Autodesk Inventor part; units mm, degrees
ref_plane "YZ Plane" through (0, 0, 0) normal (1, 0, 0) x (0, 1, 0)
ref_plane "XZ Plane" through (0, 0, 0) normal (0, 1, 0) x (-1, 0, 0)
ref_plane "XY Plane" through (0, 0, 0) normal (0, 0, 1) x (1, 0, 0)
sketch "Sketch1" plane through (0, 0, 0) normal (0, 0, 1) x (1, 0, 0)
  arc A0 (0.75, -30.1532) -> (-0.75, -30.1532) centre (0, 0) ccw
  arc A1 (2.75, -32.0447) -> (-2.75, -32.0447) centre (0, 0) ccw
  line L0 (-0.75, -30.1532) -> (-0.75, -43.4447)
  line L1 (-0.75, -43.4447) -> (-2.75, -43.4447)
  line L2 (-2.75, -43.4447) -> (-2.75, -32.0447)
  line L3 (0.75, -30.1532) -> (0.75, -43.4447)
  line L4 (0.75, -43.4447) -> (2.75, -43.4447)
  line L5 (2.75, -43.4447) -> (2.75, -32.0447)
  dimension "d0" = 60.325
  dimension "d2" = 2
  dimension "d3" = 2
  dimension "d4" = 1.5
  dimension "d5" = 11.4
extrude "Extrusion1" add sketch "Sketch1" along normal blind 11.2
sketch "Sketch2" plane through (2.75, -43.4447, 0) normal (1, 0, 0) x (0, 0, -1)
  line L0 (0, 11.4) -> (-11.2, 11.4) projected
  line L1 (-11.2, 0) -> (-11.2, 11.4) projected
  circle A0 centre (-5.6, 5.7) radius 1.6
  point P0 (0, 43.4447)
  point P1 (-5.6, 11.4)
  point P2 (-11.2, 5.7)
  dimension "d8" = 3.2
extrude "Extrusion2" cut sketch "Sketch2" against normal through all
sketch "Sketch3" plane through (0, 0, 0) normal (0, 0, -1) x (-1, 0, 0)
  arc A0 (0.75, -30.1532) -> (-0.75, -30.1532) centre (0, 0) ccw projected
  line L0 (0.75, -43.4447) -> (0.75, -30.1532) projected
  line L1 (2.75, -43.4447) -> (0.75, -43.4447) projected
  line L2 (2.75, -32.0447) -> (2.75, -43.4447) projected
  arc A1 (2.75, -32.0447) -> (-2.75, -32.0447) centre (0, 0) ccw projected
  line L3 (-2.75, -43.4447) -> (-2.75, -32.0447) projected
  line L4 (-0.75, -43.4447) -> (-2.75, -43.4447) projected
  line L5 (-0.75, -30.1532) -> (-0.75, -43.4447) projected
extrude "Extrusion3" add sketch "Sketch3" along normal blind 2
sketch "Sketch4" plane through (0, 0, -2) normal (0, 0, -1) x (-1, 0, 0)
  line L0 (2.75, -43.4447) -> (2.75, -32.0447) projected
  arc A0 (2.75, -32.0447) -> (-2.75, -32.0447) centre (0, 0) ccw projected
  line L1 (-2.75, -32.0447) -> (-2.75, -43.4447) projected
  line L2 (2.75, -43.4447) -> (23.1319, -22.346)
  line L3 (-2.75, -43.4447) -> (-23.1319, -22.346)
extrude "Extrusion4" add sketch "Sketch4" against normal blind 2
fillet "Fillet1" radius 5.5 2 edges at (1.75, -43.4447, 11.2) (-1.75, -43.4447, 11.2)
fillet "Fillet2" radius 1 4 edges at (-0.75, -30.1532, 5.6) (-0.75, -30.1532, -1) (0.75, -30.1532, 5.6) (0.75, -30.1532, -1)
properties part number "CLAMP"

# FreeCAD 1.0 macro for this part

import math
import FreeCAD as App
import Part
import Sketcher

V = App.Vector
Q = App.Units.Quantity


def edges_at(feature, points):
    """Names of the edges that pass closest to the given points."""
    edges = feature.Shape.Edges
    near = lambda p: min(range(len(edges)), key=lambda i: edges[i].distToShape(Part.Vertex(*p))[0])
    return sorted({f"Edge{near(p) + 1}" for p in points})

doc = App.newDocument("Part")
body = doc.addObject("PartDesign::Body", "Body")

# Sketch on XY plane
sketch1 = body.newObject("Sketcher::SketchObject", "Sketch")
sketch1.AttachmentSupport = (doc.getObject("XY_Plane"), [""])
sketch1.MapMode = "FlatFace"
sketch1.addGeometry([
    Part.ArcOfCircle(Part.Circle(V(0, 0, 0), V(0, 0, 1), 30.162526), math.radians(-88.575177), math.radians(268.575177)),  # 0
    Part.LineSegment(V(0.75, -30.1532, 0), V(0.75, -43.4447, 0)),  # 1
    Part.LineSegment(V(0.75, -43.4447, 0), V(2.75, -43.4447, 0)),  # 2
    Part.LineSegment(V(2.75, -43.4447, 0), V(2.75, -32.0447, 0)),  # 3
    Part.ArcOfCircle(Part.Circle(V(0, 0, 0), V(0, 0, 1), 32.162483), math.radians(-85.09503), math.radians(265.09503)),  # 4
    Part.LineSegment(V(-2.75, -32.0447, 0), V(-2.75, -43.4447, 0)),  # 5
    Part.LineSegment(V(-2.75, -43.4447, 0), V(-0.75, -43.4447, 0)),  # 6
    Part.LineSegment(V(-0.75, -43.4447, 0), V(-0.75, -30.1532, 0)),  # 7
], False)
sketch1.addConstraint([
    Sketcher.Constraint("Coincident", 0, 1, 1, 1),
    Sketcher.Constraint("Coincident", 1, 2, 2, 1),
    Sketcher.Constraint("Coincident", 2, 2, 3, 1),
    Sketcher.Constraint("Coincident", 3, 2, 4, 1),
    Sketcher.Constraint("Coincident", 4, 2, 5, 1),
    Sketcher.Constraint("Coincident", 5, 2, 6, 1),
    Sketcher.Constraint("Coincident", 6, 2, 7, 1),
    Sketcher.Constraint("Coincident", 7, 2, 0, 2),
    Sketcher.Constraint("Vertical", 1),
    Sketcher.Constraint("Horizontal", 2),
    Sketcher.Constraint("Vertical", 3),
    Sketcher.Constraint("Vertical", 5),
    Sketcher.Constraint("Horizontal", 6),
    Sketcher.Constraint("Vertical", 7),
    Sketcher.Constraint("Coincident", 0, 3, -1, 1),
    Sketcher.Constraint("Coincident", 4, 3, -1, 1),
    Sketcher.Constraint("Symmetric", 2, 2, 5, 2, -2),
    Sketcher.Constraint("Horizontal", 0, 1, 7, 2),
    Sketcher.Constraint("DistanceX", 2, 1, 2, 2, 2.0),
    Sketcher.Constraint("DistanceY", 3, 1, 3, 2, 11.4),
    Sketcher.Constraint("Radius", 0, 30.1625),
    Sketcher.Constraint("DistanceX", 6, 2, 1, 2, 1.5),
    Sketcher.Constraint("Radius", 4, 32.1625),
])
pad1 = body.newObject("PartDesign::Pad", "Pad")
pad1.Profile = sketch1
pad1.Length = 11.2

# Sketch on YZ plane
sketch2 = body.newObject("Sketcher::SketchObject", "Sketch001")
sketch2.AttachmentSupport = (doc.getObject("YZ_Plane"), [""])
sketch2.MapMode = "FlatFace"
sketch2.AttachmentOffset = App.Placement(V(0, 0, 2.75), App.Rotation())
sketch2.addGeometry(Part.Circle(V(-37.7447, 5.6, 0), V(0, 0, 1), 1.6), False)
sketch2.addConstraint([
    Sketcher.Constraint("Diameter", 0, 3.2),
    Sketcher.Constraint("DistanceY", -1, 1, 0, 3, 5.6),
    Sketcher.Constraint("DistanceX", 0, 3, -1, 1, 37.7447),
])
pocket1 = body.newObject("PartDesign::Pocket", "Pocket")
pocket1.Profile = sketch2
pocket1.Type = "ThroughAll"

# Sketch on XY plane
sketch3 = body.newObject("Sketcher::SketchObject", "Sketch002")
sketch3.AttachmentSupport = (doc.getObject("XY_Plane"), [""])
sketch3.MapMode = "FlatFace"
sketch3.addGeometry([
    Part.ArcOfCircle(Part.Circle(V(0, 0, 0), V(0, 0, 1), 30.162526), math.radians(-88.575177), math.radians(268.575177)),  # 0
    Part.LineSegment(V(-0.75, -30.1532, 0), V(-0.75, -43.4447, 0)),  # 1
    Part.LineSegment(V(-0.75, -43.4447, 0), V(-2.75, -43.4447, 0)),  # 2
    Part.LineSegment(V(-2.75, -43.4447, 0), V(-2.75, -32.0447, 0)),  # 3
    Part.ArcOfCircle(Part.Circle(V(0, 0, 0), V(0, 0, 1), 32.162483), math.radians(-85.09503), math.radians(265.09503)),  # 4
    Part.LineSegment(V(2.75, -32.0447, 0), V(2.75, -43.4447, 0)),  # 5
    Part.LineSegment(V(2.75, -43.4447, 0), V(0.75, -43.4447, 0)),  # 6
    Part.LineSegment(V(0.75, -43.4447, 0), V(0.75, -30.1532, 0)),  # 7
], False)
sketch3.addConstraint([
    Sketcher.Constraint("Coincident", 0, 2, 1, 1),
    Sketcher.Constraint("Coincident", 1, 2, 2, 1),
    Sketcher.Constraint("Coincident", 2, 2, 3, 1),
    Sketcher.Constraint("Coincident", 3, 2, 4, 2),
    Sketcher.Constraint("Coincident", 4, 1, 5, 1),
    Sketcher.Constraint("Coincident", 5, 2, 6, 1),
    Sketcher.Constraint("Coincident", 6, 2, 7, 1),
    Sketcher.Constraint("Coincident", 7, 2, 0, 1),
    Sketcher.Constraint("Vertical", 1),
    Sketcher.Constraint("Horizontal", 2),
    Sketcher.Constraint("Vertical", 3),
    Sketcher.Constraint("Vertical", 5),
    Sketcher.Constraint("Horizontal", 6),
    Sketcher.Constraint("Vertical", 7),
    Sketcher.Constraint("Coincident", 0, 3, -1, 1),
    Sketcher.Constraint("Coincident", 4, 3, -1, 1),
    Sketcher.Constraint("Symmetric", 2, 2, 5, 2, -2),
    Sketcher.Constraint("Horizontal", 0, 2, 7, 2),
    Sketcher.Constraint("DistanceX", 2, 2, 2, 1, 2.0),
    Sketcher.Constraint("DistanceY", 3, 1, 3, 2, 11.4),
    Sketcher.Constraint("Radius", 0, 30.1625),
    Sketcher.Constraint("Radius", 4, 32.1625),
    Sketcher.Constraint("DistanceX", 0, 2, 4, 1, 3.5),
])
pad2 = body.newObject("PartDesign::Pad", "Pad001")
pad2.Profile = sketch3
pad2.Length = 2
pad2.Reversed = True

# Sketch on XY plane
sketch4 = body.newObject("Sketcher::SketchObject", "Sketch003")
sketch4.AttachmentSupport = (doc.getObject("XY_Plane"), [""])
sketch4.MapMode = "FlatFace"
sketch4.AttachmentOffset = App.Placement(V(0, 0, -2), App.Rotation())
sketch4.addGeometry([
    Part.ArcOfCircle(Part.Circle(V(0, 0, 0), V(0, 0, 1), 32.162483), math.radians(-85.09503), math.radians(-44.009975)),  # 0
    Part.LineSegment(V(23.1319, -22.346, 0), V(2.75, -43.4447, 0)),  # 1
    Part.LineSegment(V(2.75, -43.4447, 0), V(2.75, -32.0447, 0)),  # 2
    Part.LineSegment(V(-2.75, -32.0447, 0), V(-2.75, -43.4447, 0)),  # 3
    Part.LineSegment(V(-2.75, -43.4447, 0), V(-23.1319, -22.346, 0)),  # 4
    Part.ArcOfCircle(Part.Circle(V(0, 0, 0), V(0, 0, 1), 32.162483), math.radians(-135.990025), math.radians(-94.90497)),  # 5
], False)
sketch4.addConstraint([
    Sketcher.Constraint("Tangent", 0, 2, 1, 1),
    Sketcher.Constraint("Coincident", 1, 2, 2, 1),
    Sketcher.Constraint("Coincident", 2, 2, 0, 1),
    Sketcher.Constraint("Coincident", 3, 2, 4, 1),
    Sketcher.Constraint("Tangent", 4, 2, 5, 1),
    Sketcher.Constraint("Coincident", 5, 2, 3, 1),
    Sketcher.Constraint("Vertical", 2),
    Sketcher.Constraint("Vertical", 3),
    Sketcher.Constraint("Coincident", 0, 3, -1, 1),
    Sketcher.Constraint("Coincident", 5, 3, -1, 1),
    Sketcher.Constraint("Equal", 0, 5),
    Sketcher.Constraint("Symmetric", 1, 2, 3, 2, -2),
    Sketcher.Constraint("DistanceY", 2, 1, 2, 2, 11.4),
    Sketcher.Constraint("Angle", 1, Q("-134.01 deg")),
    Sketcher.Constraint("Radius", 0, 32.1625),
])
pad3 = body.newObject("PartDesign::Pad", "Pad002")
pad3.Profile = sketch4
pad3.Length = 2
doc.recompute()

fillet = body.newObject("PartDesign::Fillet", "Fillet")
fillet.Base = (pad3, edges_at(pad3, [(1.75, -43.445, 11.2), (-1.75, -43.445, 11.2)]))
fillet.Radius = 5.5
doc.recompute()

fillet2 = body.newObject("PartDesign::Fillet", "Fillet001")
fillet2.Base = (fillet, edges_at(fillet, [
    (-0.75, -30.153, 5.6),
    (-0.75, -30.153, -1),
    (0.75, -30.153, 5.6),
    (0.75, -30.153, -1),
]))
fillet2.Radius = 1

doc.recompute()
